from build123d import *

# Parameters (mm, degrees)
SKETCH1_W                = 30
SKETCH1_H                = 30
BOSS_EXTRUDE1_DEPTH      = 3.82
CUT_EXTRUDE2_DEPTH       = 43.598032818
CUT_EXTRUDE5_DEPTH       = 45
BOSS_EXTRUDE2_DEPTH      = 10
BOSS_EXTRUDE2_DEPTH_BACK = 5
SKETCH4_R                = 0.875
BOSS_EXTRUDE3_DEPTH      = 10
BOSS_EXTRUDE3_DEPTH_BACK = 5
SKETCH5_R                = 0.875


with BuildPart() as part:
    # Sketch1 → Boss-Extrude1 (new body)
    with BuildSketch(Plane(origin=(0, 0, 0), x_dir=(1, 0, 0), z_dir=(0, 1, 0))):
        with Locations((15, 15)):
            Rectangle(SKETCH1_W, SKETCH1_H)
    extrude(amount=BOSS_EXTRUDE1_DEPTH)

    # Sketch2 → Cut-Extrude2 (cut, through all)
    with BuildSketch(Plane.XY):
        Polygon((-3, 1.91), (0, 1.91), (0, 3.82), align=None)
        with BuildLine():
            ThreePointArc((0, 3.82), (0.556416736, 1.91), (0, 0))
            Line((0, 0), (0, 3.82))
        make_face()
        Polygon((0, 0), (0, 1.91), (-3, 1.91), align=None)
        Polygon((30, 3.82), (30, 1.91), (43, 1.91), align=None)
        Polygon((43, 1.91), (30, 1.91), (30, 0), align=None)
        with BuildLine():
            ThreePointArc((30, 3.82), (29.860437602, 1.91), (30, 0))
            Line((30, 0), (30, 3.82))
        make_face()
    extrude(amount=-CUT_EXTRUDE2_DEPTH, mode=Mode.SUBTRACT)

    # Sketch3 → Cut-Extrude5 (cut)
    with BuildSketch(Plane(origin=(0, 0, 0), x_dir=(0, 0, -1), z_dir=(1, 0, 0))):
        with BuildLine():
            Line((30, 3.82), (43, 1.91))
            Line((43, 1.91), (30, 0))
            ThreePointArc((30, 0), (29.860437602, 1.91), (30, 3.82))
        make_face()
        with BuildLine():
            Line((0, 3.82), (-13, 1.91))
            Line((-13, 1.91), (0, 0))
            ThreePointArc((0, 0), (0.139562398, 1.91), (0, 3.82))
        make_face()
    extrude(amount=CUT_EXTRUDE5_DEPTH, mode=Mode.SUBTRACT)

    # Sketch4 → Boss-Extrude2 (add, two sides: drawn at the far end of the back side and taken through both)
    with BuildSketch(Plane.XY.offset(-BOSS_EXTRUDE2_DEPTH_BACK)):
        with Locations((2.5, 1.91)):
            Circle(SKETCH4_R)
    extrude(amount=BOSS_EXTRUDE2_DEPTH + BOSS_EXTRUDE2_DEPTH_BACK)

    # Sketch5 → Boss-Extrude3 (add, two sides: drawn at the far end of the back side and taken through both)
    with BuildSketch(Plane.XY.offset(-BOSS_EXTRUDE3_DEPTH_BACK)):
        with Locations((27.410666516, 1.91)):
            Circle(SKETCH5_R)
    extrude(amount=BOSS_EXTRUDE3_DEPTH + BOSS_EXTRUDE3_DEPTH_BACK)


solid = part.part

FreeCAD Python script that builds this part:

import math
import FreeCAD as App
import Part
import Sketcher
Q = App.Units.Quantity

doc = App.newDocument("Part")
body = doc.addObject("PartDesign::Body", "Body")

# Sketch on XZ plane
sketch1 = body.newObject("Sketcher::SketchObject", "Sketch")
sketch1.AttachmentSupport = (doc.getObject("XZ_Plane"), [""])
sketch1.MapMode = "FlatFace"
sketch1.addGeometry([
    Part.LineSegment(App.Vector(0, -30, 0), App.Vector(0, 0, 0)),
    Part.LineSegment(App.Vector(0, 0, 0), App.Vector(30, 0, 0)),
    Part.LineSegment(App.Vector(30, 0, 0), App.Vector(30, -30, 0)),
    Part.LineSegment(App.Vector(30, -30, 0), App.Vector(0, -30, 0)),
], False)
sketch1.addConstraint([
    Sketcher.Constraint("Coincident", 0, 2, 1, 1),
    Sketcher.Constraint("Coincident", 1, 2, 2, 1),
    Sketcher.Constraint("Coincident", 2, 2, 3, 1),
    Sketcher.Constraint("Coincident", 3, 2, 0, 1),
    Sketcher.Constraint("Vertical", 0),
    Sketcher.Constraint("Horizontal", 1),
    Sketcher.Constraint("Vertical", 2),
    Sketcher.Constraint("Horizontal", 3),
    Sketcher.Constraint("Coincident", 0, 2, -1, 1),
    Sketcher.Constraint("Equal", 3, 0),
    Sketcher.Constraint("DistanceX", 1, 1, 1, 2, Q("30 mm")),
])
pad1 = body.newObject("PartDesign::Pad", "Pad")
pad1.Profile = sketch1
pad1.Length = 3.82
pad1.Reversed = True

# Sketch on XY plane
sketch2 = body.newObject("Sketcher::SketchObject", "Sketch001")
sketch2.AttachmentSupport = (doc.getObject("XY_Plane"), [""])
sketch2.MapMode = "FlatFace"
sketch2.addGeometry([
    Part.ArcOfCircle(Part.Circle(App.Vector(-3, 1.91, 0), App.Vector(0, 0, 1), 3.556417), math.radians(-32.483549), math.radians(32.483549)),  # 0
    Part.LineSegment(App.Vector(0, 3.82, 0), App.Vector(-3, 1.91, 0)),  # 1
    Part.LineSegment(App.Vector(-3, 1.91, 0), App.Vector(0, 0, 0)),  # 2
    Part.LineSegment(App.Vector(30, 0, 0), App.Vector(43, 1.91, 0)),  # 3
    Part.LineSegment(App.Vector(43, 1.91, 0), App.Vector(30, 3.82, 0)),  # 4
    Part.ArcOfCircle(Part.Circle(App.Vector(43, 1.91, 0), App.Vector(0, 0, 1), 13.139562), math.radians(171.641727), math.radians(188.358273)),  # 5
], False)
sketch2.addConstraint([
    Sketcher.Constraint("Coincident", 0, 2, 1, 1),
    Sketcher.Constraint("Coincident", 1, 2, 2, 1),
    Sketcher.Constraint("Coincident", 2, 2, 0, 1),
    Sketcher.Constraint("Coincident", 3, 2, 4, 1),
    Sketcher.Constraint("Coincident", 4, 2, 5, 1),
    Sketcher.Constraint("Coincident", 5, 2, 3, 1),
    Sketcher.Constraint("Coincident", 2, 2, -1, 1),
    Sketcher.Constraint("Coincident", 1, 2, 0, 3),
    Sketcher.Constraint("Coincident", 3, 2, 5, 3),
    Sketcher.Constraint("PointOnObject", 0, 2, -2),
    Sketcher.Constraint("PointOnObject", 5, 2, -1),
    Sketcher.Constraint("Horizontal", 0, 3, 5, 3),
    Sketcher.Constraint("Horizontal", 0, 2, 4, 2),
    Sketcher.Constraint("DistanceX", 0, 3, -1, 1, Q("3 mm")),
    Sketcher.Constraint("DistanceX", -1, 1, 5, 3, Q("43 mm")),
    Sketcher.Constraint("DistanceX", -1, 1, 4, 2, Q("30 mm")),
    Sketcher.Constraint("DistanceY", -1, 1, 0, 3, Q("1.91 mm")),
])
pocket1 = body.newObject("PartDesign::Pocket", "Pocket")
pocket1.Profile = sketch2
pocket1.Type = "ThroughAll"

# Sketch on YZ plane
sketch3 = body.newObject("Sketcher::SketchObject", "Sketch002")
sketch3.AttachmentSupport = (doc.getObject("YZ_Plane"), [""])
sketch3.MapMode = "FlatFace"
sketch3.addGeometry([
    Part.LineSegment(App.Vector(1.91, -43, 0), App.Vector(3.82, -30, 0)),  # 0
    Part.ArcOfCircle(Part.Circle(App.Vector(1.91, -43, 0), App.Vector(0, 0, 1), 13.139562), math.radians(81.641727), math.radians(98.358273)),  # 1
    Part.LineSegment(App.Vector(0, -30, 0), App.Vector(1.91, -43, 0)),  # 2
    Part.LineSegment(App.Vector(3.82, 0, 0), App.Vector(1.91, 13, 0)),  # 3
    Part.LineSegment(App.Vector(1.91, 13, 0), App.Vector(0, 0, 0)),  # 4
    Part.ArcOfCircle(Part.Circle(App.Vector(1.91, 13, 0), App.Vector(0, 0, 1), 13.139562), math.radians(-98.358273), math.radians(-81.641727)),  # 5
], False)
sketch3.addConstraint([
    Sketcher.Constraint("Coincident", 0, 2, 1, 1),
    Sketcher.Constraint("Coincident", 1, 2, 2, 1),
    Sketcher.Constraint("Coincident", 2, 2, 0, 1),
    Sketcher.Constraint("Coincident", 3, 2, 4, 1),
    Sketcher.Constraint("Coincident", 4, 2, 5, 1),
    Sketcher.Constraint("Coincident", 5, 2, 3, 1),
    Sketcher.Constraint("Coincident", 4, 2, -1, 1),
    Sketcher.Constraint("Coincident", 2, 2, 1, 3),
    Sketcher.Constraint("Coincident", 3, 2, 5, 3),
    Sketcher.Constraint("Equal", 1, 5),
    Sketcher.Constraint("PointOnObject", 1, 2, -2),
    Sketcher.Constraint("PointOnObject", 5, 2, -1),
    Sketcher.Constraint("Parallel", 2, 3),
    Sketcher.Constraint("Parallel", 0, 4),
    Sketcher.Constraint("DistanceY", 1, 3, -1, 1, Q("43 mm")),
    Sketcher.Constraint("DistanceY", -1, 1, 5, 3, Q("13 mm")),
    Sketcher.Constraint("DistanceX", -1, 1, 1, 3, Q("1.91 mm")),
])
pocket2 = body.newObject("PartDesign::Pocket", "Pocket001")
pocket2.Profile = sketch3
pocket2.Length = 45
pocket2.Reversed = True

# Sketch on XY plane
sketch4 = body.newObject("Sketcher::SketchObject", "Sketch003")
sketch4.AttachmentSupport = (doc.getObject("XY_Plane"), [""])
sketch4.MapMode = "FlatFace"
sketch4.addGeometry(Part.Circle(App.Vector(2.5, 1.91, 0), App.Vector(0, 0, 1), 0.875), False)
sketch4.addConstraint([
    Sketcher.Constraint("Diameter", 0, Q("1.75 mm")),
    Sketcher.Constraint("DistanceX", -1, 1, 0, 3, Q("2.5 mm")),
    Sketcher.Constraint("DistanceY", -1, 1, 0, 3, Q("1.91 mm")),
])
pad2 = body.newObject("PartDesign::Pad", "Pad001")
pad2.Profile = sketch4
pad2.Type = "TwoLengths"
pad2.Length = 10
pad2.Length2 = 5

# Sketch on XY plane
sketch5 = body.newObject("Sketcher::SketchObject", "Sketch004")
sketch5.AttachmentSupport = (doc.getObject("XY_Plane"), [""])
sketch5.MapMode = "FlatFace"
sketch5.addGeometry(Part.Circle(App.Vector(27.410667, 1.91, 0), App.Vector(0, 0, 1), 0.875), False)
sketch5.addConstraint([
    Sketcher.Constraint("Diameter", 0, Q("1.75 mm")),
    Sketcher.Constraint("DistanceY", -1, 1, 0, 3, Q("1.91 mm")),
    Sketcher.Constraint("DistanceX", -1, 1, 0, 3, Q("27.410667 mm")),
])
pad3 = body.newObject("PartDesign::Pad", "Pad002")
pad3.Profile = sketch5
pad3.Type = "TwoLengths"
pad3.Length = 10
pad3.Length2 = 5

doc.recompute()
